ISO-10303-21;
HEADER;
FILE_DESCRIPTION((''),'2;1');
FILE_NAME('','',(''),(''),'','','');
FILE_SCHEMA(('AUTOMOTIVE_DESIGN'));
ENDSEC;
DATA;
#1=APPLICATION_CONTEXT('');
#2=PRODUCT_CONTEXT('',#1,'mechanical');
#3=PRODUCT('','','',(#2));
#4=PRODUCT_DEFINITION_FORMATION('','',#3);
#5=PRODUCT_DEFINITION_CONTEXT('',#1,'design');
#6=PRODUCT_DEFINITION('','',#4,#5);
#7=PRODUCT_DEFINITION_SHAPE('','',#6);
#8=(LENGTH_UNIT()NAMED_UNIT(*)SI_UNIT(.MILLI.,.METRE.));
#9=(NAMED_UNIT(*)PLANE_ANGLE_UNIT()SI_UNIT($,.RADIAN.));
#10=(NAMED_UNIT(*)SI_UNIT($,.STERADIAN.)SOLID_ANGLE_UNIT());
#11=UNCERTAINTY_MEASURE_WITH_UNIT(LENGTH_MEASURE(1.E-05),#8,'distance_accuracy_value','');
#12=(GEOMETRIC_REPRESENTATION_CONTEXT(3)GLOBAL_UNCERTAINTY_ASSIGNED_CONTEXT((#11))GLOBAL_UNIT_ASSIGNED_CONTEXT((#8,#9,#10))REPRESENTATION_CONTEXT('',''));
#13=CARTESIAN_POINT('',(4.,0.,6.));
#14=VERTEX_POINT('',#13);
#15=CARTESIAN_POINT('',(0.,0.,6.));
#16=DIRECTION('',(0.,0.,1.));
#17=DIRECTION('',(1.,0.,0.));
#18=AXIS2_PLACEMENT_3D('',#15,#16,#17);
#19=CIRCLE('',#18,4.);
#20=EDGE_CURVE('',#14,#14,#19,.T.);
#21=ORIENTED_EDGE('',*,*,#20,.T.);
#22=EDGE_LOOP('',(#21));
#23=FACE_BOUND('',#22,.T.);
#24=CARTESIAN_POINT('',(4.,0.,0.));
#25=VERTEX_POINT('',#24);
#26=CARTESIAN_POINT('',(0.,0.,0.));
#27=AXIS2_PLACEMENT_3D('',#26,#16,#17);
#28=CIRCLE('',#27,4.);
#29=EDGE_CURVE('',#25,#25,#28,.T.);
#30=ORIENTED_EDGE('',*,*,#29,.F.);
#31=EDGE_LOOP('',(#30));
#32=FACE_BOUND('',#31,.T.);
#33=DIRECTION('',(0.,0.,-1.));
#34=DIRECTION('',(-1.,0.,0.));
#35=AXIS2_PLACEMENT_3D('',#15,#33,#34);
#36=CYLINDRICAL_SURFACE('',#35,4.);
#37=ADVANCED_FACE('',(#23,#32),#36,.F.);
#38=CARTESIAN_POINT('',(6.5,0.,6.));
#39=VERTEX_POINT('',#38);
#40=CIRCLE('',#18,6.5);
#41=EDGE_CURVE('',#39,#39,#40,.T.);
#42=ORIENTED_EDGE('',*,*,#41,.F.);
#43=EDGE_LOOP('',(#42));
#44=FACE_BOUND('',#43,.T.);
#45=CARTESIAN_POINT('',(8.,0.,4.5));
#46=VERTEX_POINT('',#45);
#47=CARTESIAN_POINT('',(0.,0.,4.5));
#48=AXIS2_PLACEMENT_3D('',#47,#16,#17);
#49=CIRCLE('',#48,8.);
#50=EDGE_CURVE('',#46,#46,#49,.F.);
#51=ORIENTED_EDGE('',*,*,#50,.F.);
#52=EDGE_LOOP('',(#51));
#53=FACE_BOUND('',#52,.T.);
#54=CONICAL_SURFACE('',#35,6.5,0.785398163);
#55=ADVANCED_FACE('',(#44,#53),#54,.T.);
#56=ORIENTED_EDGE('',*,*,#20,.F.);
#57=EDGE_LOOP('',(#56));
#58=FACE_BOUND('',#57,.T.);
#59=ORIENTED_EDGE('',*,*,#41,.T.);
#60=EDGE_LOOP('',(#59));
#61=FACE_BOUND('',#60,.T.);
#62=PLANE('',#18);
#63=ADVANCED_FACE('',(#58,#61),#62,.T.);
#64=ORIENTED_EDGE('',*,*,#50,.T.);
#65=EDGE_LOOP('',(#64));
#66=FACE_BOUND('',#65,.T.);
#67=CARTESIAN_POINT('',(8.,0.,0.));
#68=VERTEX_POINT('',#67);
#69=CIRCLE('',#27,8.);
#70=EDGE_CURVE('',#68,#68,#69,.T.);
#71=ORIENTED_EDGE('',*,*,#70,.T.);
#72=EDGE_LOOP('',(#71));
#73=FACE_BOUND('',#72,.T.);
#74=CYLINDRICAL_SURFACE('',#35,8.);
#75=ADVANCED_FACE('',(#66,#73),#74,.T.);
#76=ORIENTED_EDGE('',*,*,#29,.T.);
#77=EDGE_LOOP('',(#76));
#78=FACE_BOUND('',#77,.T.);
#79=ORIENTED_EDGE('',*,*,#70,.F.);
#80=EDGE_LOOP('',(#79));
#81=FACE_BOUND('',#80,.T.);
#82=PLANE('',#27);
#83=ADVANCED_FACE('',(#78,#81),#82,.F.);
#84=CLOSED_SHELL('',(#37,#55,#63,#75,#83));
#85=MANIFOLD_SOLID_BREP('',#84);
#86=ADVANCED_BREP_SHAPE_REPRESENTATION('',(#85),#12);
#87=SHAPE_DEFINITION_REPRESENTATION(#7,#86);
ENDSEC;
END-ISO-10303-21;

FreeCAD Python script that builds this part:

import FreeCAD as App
import Part
import Sketcher
from FreeCAD import Vector


def edges_at(feature, points):
    """Names of the edges that pass closest to the given points."""
    edges = feature.Shape.Edges
    near = lambda p: min(range(len(edges)), key=lambda i: edges[i].distToShape(Part.Vertex(*p))[0])
    return sorted({f"Edge{near(p) + 1}" for p in points})

doc = App.newDocument("Part")
body = doc.addObject("PartDesign::Body", "Body")

sketch1 = doc.addObject("Sketcher::SketchObject", "Sketch")
body.addObject(sketch1)
sketch1.AttachmentSupport = (doc.XY_Plane, [""])
sketch1.MapMode = "FlatFace"
sketch1.addGeometry(Part.Circle(Vector(0, 0, 0), Vector(0, 0, 1), 8), False)
sketch1.addGeometry(Part.Circle(Vector(0, 0, 0), Vector(0, 0, 1), 4), False)
sketch1.addConstraint(Sketcher.Constraint("Coincident", 0, 3, -1, 1))
sketch1.addConstraint(Sketcher.Constraint("Coincident", 1, 3, -1, 1))
sketch1.addConstraint(Sketcher.Constraint("Diameter", 0, 16.0))
sketch1.addConstraint(Sketcher.Constraint("Diameter", 1, 8.0))
pad1 = doc.addObject("PartDesign::Pad", "Pad")
body.addObject(pad1)
pad1.Profile = sketch1
pad1.Length = 6
doc.recompute()

chamfer = doc.addObject("PartDesign::Chamfer", "Chamfer")
body.addObject(chamfer)
chamfer.Base = (pad1, edges_at(pad1, [(-8, 0, 6)]))
chamfer.Size = 1.5

doc.recompute()
